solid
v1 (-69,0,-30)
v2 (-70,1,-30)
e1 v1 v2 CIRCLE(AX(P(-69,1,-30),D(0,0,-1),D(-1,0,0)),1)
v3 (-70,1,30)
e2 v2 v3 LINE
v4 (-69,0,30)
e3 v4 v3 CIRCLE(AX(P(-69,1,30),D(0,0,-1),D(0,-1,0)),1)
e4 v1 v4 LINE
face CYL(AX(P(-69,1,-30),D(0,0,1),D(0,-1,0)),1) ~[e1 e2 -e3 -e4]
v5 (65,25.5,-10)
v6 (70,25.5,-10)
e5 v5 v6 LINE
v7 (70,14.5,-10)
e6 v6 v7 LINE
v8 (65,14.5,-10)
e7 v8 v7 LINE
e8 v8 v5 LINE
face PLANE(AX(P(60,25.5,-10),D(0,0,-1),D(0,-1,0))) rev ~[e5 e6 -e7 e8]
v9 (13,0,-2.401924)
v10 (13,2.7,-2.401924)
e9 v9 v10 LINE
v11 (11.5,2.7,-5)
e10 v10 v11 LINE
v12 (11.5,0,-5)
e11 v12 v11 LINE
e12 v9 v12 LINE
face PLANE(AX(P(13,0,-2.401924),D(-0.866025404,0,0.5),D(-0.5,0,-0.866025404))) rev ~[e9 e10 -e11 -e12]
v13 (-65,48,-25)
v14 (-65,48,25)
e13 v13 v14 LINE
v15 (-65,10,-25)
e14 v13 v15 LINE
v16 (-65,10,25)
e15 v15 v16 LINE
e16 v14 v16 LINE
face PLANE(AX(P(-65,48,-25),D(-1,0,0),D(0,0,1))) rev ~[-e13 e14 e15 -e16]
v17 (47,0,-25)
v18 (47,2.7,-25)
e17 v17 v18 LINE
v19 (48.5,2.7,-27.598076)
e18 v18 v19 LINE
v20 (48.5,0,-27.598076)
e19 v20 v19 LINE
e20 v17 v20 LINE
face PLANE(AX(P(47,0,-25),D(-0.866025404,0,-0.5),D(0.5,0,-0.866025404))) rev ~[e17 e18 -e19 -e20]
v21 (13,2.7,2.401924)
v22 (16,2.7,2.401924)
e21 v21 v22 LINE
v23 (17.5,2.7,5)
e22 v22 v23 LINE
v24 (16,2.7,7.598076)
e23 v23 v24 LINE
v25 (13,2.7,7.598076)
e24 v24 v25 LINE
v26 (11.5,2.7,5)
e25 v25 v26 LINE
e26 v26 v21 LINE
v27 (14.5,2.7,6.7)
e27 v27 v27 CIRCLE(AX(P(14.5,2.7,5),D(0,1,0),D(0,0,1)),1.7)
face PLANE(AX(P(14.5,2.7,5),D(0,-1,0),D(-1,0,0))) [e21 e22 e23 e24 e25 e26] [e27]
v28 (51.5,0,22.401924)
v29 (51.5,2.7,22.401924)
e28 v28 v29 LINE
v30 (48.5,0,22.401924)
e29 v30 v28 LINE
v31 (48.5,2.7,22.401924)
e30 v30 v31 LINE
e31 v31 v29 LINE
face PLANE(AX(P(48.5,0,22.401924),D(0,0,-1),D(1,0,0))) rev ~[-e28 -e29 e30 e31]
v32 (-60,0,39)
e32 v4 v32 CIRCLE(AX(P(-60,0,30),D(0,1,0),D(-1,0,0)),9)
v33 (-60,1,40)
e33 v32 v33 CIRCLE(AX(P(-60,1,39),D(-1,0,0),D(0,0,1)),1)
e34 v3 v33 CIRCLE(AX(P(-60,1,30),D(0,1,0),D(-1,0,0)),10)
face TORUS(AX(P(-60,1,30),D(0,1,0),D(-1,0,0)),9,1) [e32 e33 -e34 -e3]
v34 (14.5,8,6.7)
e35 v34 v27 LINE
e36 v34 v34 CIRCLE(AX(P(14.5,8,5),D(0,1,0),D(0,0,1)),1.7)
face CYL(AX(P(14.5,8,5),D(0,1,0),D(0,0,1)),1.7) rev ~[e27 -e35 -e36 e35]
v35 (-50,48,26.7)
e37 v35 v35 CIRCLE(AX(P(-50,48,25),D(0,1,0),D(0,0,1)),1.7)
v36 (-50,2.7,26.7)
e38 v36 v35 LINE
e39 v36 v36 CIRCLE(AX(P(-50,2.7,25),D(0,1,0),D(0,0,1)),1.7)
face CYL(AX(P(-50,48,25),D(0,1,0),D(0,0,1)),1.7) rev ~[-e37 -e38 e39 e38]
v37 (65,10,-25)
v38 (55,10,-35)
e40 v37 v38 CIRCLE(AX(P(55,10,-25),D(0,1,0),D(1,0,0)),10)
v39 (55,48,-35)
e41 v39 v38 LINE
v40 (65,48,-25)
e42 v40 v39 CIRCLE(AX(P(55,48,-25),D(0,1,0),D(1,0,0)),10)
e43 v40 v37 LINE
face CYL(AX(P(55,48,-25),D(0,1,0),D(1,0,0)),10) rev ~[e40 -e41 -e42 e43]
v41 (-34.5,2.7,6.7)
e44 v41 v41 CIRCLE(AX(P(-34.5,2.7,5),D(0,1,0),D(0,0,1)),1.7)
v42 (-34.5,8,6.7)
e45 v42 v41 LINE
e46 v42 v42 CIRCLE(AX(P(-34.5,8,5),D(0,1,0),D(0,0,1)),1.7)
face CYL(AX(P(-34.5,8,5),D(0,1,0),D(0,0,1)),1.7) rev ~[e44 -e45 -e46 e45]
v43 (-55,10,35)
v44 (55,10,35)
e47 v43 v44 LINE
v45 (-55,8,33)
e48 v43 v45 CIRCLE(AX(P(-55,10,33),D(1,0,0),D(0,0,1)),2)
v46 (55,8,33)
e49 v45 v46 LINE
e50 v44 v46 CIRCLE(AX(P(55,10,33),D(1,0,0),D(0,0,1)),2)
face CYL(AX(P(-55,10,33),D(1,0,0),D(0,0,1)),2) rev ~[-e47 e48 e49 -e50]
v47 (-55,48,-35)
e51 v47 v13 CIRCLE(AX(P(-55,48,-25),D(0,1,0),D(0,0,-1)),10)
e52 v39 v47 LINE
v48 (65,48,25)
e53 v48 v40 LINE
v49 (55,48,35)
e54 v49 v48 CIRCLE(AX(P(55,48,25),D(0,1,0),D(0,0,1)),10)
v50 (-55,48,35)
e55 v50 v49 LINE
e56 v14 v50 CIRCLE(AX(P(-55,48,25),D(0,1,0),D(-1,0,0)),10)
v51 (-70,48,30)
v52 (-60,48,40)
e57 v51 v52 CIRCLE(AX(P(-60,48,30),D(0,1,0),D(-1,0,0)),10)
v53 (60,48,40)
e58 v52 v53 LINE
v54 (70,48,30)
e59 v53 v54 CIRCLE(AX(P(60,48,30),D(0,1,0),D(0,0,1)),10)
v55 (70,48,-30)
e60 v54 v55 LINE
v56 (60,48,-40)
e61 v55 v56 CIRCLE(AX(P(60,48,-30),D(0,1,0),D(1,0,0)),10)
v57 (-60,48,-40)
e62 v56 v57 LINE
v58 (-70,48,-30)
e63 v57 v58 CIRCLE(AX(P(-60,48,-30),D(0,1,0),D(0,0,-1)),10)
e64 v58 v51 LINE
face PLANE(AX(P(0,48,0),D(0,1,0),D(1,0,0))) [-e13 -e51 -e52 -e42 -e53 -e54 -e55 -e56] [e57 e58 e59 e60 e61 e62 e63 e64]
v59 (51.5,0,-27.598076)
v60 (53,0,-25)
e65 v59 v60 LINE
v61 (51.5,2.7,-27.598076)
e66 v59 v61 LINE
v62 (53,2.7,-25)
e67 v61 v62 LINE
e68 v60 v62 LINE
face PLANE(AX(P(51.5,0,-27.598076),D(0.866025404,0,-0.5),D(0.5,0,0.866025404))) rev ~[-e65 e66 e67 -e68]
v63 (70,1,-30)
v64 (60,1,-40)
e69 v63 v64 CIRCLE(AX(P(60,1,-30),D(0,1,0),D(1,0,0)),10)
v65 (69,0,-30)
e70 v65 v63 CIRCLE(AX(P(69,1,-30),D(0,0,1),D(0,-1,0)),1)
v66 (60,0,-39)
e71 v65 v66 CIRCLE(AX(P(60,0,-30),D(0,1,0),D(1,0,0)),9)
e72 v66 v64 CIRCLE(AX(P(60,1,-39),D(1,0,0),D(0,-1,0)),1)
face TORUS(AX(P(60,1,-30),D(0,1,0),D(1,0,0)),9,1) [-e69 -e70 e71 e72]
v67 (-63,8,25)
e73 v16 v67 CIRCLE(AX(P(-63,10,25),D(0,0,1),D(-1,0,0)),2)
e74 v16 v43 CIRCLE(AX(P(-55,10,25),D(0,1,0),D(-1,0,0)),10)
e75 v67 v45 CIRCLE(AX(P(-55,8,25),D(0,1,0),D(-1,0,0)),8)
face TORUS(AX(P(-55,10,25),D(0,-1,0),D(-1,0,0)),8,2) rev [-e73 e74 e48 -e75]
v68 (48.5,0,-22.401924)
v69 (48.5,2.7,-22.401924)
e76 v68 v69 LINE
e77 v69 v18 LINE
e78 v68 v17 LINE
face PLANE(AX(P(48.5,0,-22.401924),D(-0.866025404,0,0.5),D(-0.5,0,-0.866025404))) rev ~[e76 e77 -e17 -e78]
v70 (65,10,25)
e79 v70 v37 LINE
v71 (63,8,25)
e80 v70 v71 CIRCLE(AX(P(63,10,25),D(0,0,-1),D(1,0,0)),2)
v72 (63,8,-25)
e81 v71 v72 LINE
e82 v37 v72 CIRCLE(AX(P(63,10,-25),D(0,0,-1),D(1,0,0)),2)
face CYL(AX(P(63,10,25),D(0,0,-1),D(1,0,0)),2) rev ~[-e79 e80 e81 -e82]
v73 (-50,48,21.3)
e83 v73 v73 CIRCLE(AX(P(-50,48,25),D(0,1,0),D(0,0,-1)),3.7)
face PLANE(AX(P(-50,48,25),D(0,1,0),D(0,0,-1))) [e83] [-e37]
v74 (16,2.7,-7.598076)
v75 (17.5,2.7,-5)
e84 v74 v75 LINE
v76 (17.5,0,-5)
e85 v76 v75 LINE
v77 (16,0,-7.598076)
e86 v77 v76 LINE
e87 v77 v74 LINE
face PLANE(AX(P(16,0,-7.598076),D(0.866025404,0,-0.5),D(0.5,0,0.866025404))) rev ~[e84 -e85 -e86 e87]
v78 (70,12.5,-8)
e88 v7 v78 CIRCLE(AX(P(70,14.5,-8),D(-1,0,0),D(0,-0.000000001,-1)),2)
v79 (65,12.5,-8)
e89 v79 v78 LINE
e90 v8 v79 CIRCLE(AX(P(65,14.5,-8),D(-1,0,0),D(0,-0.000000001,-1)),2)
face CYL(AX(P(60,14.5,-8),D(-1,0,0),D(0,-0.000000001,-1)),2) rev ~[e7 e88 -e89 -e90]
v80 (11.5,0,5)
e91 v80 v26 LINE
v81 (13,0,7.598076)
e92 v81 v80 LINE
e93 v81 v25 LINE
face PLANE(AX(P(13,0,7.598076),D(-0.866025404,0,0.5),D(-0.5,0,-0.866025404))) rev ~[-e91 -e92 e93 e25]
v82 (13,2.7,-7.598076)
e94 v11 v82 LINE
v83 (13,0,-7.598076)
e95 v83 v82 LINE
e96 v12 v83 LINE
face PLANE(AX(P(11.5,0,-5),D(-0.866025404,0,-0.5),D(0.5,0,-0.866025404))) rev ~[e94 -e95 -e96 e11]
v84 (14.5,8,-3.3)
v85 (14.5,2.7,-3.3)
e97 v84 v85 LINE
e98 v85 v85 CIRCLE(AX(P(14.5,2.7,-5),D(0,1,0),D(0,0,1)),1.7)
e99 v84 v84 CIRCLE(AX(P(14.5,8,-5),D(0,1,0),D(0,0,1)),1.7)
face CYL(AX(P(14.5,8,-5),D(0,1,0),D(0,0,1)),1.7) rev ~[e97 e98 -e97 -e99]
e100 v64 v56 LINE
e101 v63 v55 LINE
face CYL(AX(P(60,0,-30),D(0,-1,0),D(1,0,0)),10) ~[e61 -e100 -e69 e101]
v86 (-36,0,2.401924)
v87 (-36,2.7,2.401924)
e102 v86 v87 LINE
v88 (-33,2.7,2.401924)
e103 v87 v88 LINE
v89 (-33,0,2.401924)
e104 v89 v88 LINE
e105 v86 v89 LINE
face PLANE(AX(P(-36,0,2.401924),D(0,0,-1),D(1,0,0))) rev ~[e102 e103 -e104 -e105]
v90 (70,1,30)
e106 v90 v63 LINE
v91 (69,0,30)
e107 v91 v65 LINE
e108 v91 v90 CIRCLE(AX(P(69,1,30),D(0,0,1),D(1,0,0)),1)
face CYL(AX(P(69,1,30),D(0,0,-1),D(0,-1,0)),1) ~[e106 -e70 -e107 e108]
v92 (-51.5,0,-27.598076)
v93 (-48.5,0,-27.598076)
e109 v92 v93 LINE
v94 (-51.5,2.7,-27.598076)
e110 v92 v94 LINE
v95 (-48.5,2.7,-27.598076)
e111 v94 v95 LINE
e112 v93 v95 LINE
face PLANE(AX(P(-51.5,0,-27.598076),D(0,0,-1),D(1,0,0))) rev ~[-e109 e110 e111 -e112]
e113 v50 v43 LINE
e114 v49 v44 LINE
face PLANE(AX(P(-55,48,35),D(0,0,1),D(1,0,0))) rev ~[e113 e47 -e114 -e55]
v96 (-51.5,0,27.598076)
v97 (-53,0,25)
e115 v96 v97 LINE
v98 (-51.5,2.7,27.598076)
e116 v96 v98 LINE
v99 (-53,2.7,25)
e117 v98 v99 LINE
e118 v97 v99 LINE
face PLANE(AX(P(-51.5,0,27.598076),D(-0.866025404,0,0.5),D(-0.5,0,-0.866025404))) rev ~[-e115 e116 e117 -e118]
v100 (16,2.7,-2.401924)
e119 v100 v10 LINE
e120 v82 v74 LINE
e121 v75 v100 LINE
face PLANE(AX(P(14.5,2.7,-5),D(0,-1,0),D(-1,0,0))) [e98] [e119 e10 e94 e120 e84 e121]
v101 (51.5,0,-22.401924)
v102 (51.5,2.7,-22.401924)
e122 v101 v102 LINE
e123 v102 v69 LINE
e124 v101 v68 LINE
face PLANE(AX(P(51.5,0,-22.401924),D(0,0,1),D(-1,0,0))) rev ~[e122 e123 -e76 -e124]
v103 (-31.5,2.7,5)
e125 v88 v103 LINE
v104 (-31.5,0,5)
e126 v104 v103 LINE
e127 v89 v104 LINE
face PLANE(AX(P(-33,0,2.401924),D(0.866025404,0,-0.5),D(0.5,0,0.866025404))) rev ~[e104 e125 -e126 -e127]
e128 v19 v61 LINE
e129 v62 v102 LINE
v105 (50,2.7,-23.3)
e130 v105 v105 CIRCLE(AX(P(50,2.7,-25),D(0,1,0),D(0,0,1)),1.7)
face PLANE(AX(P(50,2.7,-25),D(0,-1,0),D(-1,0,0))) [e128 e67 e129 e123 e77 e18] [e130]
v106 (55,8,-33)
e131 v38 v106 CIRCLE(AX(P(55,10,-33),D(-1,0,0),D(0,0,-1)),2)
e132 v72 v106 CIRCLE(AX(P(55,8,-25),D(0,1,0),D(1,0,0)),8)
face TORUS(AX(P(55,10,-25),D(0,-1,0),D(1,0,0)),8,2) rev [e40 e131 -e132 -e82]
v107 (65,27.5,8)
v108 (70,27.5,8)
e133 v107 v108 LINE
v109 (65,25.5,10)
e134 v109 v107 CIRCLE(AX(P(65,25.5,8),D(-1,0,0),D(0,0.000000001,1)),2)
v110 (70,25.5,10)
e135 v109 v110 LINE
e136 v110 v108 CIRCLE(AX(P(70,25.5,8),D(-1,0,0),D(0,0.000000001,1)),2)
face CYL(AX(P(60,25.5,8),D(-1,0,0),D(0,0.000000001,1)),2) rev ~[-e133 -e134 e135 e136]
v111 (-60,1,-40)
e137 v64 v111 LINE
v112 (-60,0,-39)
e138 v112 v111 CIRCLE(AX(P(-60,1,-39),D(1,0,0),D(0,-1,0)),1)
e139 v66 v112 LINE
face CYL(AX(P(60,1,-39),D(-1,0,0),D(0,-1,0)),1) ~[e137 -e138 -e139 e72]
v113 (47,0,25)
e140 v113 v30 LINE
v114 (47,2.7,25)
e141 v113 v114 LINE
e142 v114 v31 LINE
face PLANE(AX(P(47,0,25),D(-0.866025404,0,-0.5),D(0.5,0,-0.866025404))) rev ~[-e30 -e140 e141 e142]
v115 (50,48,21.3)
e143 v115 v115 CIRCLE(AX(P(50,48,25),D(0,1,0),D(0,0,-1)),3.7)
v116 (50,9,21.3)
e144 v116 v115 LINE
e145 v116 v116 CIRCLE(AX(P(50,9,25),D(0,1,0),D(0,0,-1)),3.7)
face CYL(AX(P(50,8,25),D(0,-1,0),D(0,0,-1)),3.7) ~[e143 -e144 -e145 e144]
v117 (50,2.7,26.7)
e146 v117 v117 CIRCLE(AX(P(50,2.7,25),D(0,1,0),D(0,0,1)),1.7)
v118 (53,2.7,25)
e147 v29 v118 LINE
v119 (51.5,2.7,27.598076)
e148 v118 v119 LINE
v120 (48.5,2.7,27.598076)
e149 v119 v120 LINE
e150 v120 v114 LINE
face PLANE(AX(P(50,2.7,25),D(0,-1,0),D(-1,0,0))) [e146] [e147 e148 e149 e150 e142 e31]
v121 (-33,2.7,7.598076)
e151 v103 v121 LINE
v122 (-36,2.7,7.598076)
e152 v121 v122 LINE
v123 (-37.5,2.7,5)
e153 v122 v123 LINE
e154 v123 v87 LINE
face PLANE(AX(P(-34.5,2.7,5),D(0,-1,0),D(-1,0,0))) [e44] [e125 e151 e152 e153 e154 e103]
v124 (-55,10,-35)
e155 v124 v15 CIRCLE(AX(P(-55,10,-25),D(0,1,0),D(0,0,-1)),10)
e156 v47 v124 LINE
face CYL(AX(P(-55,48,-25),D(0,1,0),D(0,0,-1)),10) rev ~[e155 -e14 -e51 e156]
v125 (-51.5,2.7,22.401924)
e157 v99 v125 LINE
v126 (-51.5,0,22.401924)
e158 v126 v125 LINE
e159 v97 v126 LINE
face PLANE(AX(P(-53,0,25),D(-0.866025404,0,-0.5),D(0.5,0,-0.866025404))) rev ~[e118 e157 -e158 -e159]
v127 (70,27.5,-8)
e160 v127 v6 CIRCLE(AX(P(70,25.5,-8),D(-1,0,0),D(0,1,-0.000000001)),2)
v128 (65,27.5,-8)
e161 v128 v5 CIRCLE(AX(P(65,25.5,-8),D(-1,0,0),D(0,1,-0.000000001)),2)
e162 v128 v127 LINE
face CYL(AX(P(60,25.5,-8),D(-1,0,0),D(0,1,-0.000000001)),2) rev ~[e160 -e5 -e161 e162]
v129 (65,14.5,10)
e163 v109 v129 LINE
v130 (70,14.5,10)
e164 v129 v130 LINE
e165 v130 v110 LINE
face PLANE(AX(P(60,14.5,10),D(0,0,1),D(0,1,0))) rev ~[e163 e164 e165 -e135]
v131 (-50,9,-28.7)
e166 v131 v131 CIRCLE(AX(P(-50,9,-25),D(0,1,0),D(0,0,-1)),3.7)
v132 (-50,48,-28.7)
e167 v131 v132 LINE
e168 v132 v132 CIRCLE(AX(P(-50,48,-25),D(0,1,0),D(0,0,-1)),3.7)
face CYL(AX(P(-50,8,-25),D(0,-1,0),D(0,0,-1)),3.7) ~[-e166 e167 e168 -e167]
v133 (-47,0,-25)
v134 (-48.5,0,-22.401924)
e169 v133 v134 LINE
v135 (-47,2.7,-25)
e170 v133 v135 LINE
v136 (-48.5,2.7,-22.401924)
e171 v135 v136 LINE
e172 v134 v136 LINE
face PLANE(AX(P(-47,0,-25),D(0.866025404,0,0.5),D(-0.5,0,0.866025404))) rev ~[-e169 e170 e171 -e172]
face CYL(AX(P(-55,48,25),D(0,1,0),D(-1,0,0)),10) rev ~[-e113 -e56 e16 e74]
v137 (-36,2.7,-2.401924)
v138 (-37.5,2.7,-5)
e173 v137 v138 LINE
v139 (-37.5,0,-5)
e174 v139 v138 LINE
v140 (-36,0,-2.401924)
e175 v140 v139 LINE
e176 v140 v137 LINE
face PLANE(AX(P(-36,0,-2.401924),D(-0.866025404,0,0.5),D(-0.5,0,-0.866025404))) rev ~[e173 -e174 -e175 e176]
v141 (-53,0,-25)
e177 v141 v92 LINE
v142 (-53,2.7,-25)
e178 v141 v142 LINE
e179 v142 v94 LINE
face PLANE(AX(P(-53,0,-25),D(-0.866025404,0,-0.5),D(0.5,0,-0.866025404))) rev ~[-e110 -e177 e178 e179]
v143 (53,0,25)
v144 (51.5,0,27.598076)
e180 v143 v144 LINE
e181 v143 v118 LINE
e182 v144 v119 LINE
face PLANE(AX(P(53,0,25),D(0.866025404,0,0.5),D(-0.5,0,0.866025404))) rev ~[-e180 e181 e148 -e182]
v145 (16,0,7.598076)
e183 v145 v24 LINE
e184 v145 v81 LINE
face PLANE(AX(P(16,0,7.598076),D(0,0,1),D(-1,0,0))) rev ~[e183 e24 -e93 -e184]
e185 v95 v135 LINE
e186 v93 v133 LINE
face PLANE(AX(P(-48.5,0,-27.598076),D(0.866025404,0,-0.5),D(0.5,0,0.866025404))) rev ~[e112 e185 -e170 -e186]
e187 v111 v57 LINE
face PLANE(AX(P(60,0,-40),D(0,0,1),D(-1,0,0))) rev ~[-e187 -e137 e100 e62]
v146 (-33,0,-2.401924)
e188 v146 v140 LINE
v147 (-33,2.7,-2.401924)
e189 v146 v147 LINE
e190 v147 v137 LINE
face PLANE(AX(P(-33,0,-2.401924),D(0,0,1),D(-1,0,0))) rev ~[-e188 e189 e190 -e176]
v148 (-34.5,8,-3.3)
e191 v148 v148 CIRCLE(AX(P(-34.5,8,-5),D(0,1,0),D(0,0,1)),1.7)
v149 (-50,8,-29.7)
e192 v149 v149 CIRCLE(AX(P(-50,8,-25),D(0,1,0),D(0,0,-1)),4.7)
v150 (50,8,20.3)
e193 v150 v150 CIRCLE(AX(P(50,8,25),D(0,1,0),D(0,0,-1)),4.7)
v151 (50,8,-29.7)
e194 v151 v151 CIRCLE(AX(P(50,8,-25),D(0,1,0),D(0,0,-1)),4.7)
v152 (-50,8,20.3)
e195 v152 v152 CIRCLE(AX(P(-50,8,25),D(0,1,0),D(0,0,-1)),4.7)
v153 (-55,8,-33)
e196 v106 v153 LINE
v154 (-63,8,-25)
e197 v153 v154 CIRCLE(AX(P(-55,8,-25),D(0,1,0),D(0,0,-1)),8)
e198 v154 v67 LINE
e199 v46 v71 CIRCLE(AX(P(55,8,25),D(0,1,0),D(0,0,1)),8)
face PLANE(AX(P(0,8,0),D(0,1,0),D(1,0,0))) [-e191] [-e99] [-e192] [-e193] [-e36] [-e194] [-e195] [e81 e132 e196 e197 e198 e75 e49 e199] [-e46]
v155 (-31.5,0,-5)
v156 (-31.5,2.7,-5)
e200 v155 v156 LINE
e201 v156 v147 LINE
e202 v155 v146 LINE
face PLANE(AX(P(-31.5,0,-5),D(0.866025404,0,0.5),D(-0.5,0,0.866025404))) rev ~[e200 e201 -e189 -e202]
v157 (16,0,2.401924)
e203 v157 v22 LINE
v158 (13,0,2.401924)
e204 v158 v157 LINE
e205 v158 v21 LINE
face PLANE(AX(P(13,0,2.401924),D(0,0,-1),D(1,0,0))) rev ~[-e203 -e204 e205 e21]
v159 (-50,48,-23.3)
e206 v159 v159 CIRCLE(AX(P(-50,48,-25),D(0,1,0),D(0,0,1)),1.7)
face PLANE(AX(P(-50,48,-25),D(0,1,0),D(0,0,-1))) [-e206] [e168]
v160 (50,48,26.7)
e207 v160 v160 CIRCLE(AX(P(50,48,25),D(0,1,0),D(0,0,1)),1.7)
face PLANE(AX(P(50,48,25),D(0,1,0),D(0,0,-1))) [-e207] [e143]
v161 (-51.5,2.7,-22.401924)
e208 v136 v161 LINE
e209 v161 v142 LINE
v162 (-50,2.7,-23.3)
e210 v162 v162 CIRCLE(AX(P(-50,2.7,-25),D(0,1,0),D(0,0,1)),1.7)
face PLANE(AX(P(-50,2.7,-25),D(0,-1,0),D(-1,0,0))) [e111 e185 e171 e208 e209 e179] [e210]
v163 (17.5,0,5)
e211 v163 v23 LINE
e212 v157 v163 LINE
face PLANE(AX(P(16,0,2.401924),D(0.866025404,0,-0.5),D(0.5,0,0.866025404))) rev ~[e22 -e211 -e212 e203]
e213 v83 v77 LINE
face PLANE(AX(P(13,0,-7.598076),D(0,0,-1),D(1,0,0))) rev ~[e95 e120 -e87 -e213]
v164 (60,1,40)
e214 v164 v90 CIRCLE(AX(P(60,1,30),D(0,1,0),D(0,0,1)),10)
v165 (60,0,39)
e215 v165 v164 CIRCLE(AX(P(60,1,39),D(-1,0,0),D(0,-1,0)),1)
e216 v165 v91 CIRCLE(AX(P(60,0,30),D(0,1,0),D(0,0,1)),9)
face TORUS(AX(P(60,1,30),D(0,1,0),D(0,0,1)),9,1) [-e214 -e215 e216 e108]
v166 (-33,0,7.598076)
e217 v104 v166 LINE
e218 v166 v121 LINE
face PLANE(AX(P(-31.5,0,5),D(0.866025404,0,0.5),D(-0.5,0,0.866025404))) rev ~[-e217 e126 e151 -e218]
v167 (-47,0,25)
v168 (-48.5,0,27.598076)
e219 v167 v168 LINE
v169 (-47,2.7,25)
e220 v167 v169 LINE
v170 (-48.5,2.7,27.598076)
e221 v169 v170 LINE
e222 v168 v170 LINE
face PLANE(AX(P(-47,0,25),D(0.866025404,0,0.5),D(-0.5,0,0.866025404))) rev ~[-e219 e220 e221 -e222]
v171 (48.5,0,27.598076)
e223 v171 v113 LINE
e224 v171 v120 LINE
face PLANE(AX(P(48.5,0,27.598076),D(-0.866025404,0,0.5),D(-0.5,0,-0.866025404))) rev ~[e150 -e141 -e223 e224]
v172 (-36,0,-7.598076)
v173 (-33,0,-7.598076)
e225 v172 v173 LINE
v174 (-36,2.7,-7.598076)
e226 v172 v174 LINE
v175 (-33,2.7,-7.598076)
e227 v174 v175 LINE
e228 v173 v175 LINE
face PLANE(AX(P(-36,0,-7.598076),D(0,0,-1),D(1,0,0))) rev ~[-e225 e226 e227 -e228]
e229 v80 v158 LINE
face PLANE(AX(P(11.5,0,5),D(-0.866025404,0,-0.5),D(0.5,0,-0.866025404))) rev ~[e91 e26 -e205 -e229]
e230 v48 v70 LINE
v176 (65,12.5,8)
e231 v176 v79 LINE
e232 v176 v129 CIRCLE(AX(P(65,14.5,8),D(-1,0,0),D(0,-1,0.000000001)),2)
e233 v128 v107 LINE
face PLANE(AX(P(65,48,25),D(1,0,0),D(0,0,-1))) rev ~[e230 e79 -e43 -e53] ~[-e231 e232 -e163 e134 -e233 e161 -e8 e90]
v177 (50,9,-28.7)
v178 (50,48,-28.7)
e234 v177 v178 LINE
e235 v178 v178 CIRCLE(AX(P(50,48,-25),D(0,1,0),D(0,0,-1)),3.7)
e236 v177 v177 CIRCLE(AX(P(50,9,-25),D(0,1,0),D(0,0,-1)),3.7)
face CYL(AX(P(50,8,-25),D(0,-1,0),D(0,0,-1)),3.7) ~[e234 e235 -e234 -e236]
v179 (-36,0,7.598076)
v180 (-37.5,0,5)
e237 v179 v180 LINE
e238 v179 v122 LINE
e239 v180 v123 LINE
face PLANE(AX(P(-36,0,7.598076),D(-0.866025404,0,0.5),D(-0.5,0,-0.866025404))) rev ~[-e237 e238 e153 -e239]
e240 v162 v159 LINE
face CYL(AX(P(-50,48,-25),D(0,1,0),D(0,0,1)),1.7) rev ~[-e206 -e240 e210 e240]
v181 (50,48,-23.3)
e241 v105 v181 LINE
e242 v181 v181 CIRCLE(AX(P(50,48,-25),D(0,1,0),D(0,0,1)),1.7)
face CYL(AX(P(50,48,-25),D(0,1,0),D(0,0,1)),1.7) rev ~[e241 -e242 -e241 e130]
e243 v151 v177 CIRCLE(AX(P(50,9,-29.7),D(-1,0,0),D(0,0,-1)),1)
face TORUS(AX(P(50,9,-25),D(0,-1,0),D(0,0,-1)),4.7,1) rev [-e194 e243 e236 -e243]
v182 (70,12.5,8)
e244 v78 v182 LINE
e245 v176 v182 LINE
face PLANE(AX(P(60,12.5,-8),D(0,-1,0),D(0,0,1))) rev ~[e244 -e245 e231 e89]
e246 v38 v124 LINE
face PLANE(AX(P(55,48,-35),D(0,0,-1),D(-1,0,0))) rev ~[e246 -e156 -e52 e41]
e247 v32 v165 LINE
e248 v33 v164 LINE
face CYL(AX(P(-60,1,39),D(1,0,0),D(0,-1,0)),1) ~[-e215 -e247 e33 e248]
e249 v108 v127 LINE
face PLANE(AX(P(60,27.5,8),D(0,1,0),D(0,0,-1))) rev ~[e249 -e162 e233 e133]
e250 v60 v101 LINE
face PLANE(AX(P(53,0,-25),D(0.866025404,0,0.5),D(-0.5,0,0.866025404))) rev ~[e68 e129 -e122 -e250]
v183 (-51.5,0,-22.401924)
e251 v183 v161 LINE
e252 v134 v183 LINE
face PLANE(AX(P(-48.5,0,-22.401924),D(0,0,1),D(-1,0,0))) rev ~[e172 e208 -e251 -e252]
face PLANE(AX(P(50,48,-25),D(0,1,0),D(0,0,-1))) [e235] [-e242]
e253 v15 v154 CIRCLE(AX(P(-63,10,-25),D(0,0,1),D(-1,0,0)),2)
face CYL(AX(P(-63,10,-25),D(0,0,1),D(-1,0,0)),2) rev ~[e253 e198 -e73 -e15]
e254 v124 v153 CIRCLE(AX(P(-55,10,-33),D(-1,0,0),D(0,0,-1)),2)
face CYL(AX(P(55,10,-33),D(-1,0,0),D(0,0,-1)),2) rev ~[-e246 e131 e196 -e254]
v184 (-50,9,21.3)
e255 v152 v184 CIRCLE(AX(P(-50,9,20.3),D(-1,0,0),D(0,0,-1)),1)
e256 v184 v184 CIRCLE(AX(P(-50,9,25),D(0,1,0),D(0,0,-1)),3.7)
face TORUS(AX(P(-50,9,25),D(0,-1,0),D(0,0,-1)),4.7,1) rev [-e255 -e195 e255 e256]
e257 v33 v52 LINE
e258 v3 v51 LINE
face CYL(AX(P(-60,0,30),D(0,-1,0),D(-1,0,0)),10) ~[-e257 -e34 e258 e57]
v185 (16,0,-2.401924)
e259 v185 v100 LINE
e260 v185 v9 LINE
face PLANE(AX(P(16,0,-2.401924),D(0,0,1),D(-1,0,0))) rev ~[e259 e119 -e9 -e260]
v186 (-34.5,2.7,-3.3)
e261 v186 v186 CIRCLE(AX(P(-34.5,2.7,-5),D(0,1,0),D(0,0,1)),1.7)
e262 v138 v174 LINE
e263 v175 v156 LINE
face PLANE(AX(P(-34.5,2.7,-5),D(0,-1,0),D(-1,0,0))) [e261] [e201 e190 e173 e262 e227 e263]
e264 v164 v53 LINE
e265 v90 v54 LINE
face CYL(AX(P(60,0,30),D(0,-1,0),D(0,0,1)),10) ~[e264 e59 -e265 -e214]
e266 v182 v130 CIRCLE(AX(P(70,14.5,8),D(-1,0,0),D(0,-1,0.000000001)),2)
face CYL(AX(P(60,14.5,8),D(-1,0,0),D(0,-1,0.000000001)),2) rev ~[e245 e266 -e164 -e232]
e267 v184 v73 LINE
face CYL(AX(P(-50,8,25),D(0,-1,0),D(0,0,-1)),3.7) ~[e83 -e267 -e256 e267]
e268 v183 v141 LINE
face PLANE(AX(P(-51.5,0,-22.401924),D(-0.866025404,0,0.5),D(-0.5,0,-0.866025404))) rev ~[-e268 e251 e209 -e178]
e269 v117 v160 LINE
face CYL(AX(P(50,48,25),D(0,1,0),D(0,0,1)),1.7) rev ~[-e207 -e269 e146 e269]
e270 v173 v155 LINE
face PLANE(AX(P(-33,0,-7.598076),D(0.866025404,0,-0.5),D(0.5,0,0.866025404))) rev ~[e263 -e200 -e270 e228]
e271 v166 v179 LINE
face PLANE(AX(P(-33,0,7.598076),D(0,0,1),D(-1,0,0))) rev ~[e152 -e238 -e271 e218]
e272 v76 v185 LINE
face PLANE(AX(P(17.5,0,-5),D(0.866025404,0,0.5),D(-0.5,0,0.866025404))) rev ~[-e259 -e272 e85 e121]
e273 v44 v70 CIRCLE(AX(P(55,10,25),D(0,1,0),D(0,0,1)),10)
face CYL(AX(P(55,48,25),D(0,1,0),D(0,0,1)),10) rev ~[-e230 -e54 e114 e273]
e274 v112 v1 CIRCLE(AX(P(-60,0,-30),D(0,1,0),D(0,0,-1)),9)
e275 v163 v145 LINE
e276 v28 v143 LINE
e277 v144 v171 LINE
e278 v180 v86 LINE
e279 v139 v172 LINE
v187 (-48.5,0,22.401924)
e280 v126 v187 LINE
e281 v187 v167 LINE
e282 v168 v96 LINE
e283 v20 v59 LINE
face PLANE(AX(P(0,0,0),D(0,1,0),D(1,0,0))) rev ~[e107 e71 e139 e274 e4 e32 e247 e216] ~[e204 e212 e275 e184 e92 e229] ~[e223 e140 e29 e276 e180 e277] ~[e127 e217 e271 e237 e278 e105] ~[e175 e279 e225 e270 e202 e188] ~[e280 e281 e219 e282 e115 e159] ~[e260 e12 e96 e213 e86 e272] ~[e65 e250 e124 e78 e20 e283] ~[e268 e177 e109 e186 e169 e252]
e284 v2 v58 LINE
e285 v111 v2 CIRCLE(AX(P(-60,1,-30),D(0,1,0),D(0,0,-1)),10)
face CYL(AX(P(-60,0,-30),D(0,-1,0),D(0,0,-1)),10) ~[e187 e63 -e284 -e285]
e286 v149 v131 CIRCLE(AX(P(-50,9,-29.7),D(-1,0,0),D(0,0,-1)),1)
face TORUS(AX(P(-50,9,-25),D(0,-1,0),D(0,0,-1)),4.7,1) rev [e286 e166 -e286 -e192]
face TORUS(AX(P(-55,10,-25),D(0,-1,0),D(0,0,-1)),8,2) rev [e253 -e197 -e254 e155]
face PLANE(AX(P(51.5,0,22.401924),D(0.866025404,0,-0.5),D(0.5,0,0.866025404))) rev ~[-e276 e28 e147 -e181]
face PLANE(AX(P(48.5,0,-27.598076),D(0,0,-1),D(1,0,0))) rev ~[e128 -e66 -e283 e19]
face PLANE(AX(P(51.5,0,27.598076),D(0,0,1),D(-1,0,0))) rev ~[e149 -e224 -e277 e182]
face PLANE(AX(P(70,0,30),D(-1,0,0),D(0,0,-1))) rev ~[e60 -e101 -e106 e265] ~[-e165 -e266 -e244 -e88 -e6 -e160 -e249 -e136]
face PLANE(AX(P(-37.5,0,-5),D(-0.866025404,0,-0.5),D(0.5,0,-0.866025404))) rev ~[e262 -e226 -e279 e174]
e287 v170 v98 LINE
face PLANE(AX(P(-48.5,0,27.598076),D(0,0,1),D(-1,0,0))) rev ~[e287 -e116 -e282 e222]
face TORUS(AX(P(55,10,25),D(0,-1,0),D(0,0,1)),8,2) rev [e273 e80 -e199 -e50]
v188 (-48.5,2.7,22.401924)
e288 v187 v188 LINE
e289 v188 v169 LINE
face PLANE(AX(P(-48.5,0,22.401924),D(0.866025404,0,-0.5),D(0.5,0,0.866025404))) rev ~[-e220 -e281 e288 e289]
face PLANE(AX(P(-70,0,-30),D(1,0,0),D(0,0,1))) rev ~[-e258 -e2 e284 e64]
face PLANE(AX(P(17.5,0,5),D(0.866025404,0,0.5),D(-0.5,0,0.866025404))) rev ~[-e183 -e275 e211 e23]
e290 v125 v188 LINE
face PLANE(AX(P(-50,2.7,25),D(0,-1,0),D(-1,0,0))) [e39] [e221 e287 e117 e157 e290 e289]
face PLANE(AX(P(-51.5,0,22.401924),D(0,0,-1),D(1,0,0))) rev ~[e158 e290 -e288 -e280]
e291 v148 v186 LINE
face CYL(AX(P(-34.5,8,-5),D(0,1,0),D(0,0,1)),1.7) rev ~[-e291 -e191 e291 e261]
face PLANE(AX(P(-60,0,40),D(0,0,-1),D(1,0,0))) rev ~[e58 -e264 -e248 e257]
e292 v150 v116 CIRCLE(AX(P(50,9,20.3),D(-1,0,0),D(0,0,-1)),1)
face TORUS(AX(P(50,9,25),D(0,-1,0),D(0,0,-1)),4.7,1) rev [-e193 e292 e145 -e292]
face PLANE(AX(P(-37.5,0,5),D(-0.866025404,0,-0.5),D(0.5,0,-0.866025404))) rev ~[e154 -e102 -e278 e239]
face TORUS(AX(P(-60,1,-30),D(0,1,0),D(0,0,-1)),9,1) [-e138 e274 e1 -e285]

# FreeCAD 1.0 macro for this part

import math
import FreeCAD as App
import Part
import Sketcher
Q = App.Units.Quantity


def edges_at(feature, points):
    """Names of the edges that pass closest to the given points."""
    edges = feature.Shape.Edges
    near = lambda p: min(range(len(edges)), key=lambda i: edges[i].distToShape(Part.Vertex(*p))[0])
    return sorted({f"Edge{near(p) + 1}" for p in points})

doc = App.newDocument("Part")
params = doc.addObject("Spreadsheet::Sheet", "Params")
for row, (alias, value) in enumerate([
    ("sketch1_radius", "10 mm"),
    ("sketch1_width", "120 mm"),
    ("sketch1_height", "60 mm"),
    ("pad1_length", "48 mm"),
    ("sketch2_radius", "10 mm"),
    ("sketch2_width", "110 mm"),
    ("sketch2_height", "50 mm"),
    ("pocket1_length", "40 mm"),
    ("sketch3_diameter", "3.4 mm"),
    ("sketch4_width", "3 mm"),
    ("sketch4_length", "3 mm"),
    ("pocket3_length", "2.7 mm"),
    ("sketch5_diameter", "7.4 mm"),
    ("pad2_length", "40 mm"),
    ("sketch6_diameter", "3.4 mm"),
    ("fillet_radius", "1 mm"),
    ("fillet2_radius", "2 mm"),
    ("fillet3_radius", "1 mm"),
    ("sketch7_diameter", "3.4 mm"),
    ("sketch8_width", "3 mm"),
    ("sketch8_length", "3 mm"),
    ("pocket6_length", "2.7 mm"),
    ("sketch9_radius", "2 mm"),
    ("sketch9_width", "11 mm"),
    ("sketch9_height", "16 mm"),
    ("pocket7_length", "20 mm"),
], start=1):
    params.set(f"A{row}", alias)
    params.set(f"B{row}", "=" + value)
    params.setAlias(f"B{row}", alias)

body = doc.addObject("PartDesign::Body", "Body")

sketch1 = body.newObject("Sketcher::SketchObject", "Sketch")
sketch1.AttachmentSupport = (doc.getObject("XZ_Plane"), [""])
sketch1.MapMode = "FlatFace"
sketch1.addGeometry([
    Part.LineSegment(App.Vector(-60, 40, 0), App.Vector(60, 40, 0)),
    Part.ArcOfCircle(Part.Circle(App.Vector(60, 30, 0), App.Vector(0, 0, 1), 10), math.radians(0), math.radians(90)),
    Part.LineSegment(App.Vector(70, 30, 0), App.Vector(70, -30, 0)),
    Part.ArcOfCircle(Part.Circle(App.Vector(60, -30, 0), App.Vector(0, 0, 1), 10), math.radians(-90), math.radians(0)),
    Part.LineSegment(App.Vector(60, -40, 0), App.Vector(-60, -40, 0)),
    Part.ArcOfCircle(Part.Circle(App.Vector(-60, -30, 0), App.Vector(0, 0, 1), 10), math.radians(180), math.radians(270)),
    Part.LineSegment(App.Vector(-70, -30, 0), App.Vector(-70, 30, 0)),
    Part.ArcOfCircle(Part.Circle(App.Vector(-60, 30, 0), App.Vector(0, 0, 1), 10), math.radians(90), math.radians(180)),
], False)
sketch1.addConstraint([
    Sketcher.Constraint("Tangent", 0, 2, 1, 2),
    Sketcher.Constraint("Tangent", 1, 1, 2, 1),
    Sketcher.Constraint("Tangent", 2, 2, 3, 2),
    Sketcher.Constraint("Tangent", 3, 1, 4, 1),
    Sketcher.Constraint("Tangent", 4, 2, 5, 2),
    Sketcher.Constraint("Tangent", 5, 1, 6, 1),
    Sketcher.Constraint("Tangent", 6, 2, 7, 2),
    Sketcher.Constraint("Tangent", 7, 1, 0, 1),
    Sketcher.Constraint("Horizontal", 0),
    Sketcher.Constraint("Vertical", 2),
    Sketcher.Constraint("Horizontal", 4),
    Sketcher.Constraint("Vertical", 6),
    Sketcher.Constraint("Equal", 1, 3),
    Sketcher.Constraint("Equal", 3, 5),
    Sketcher.Constraint("Equal", 5, 7),
    Sketcher.Constraint("Symmetric", 1, 3, 5, 3, -1, 1),
    Sketcher.Constraint("Radius", 1, 10.0),
    Sketcher.Constraint("DistanceX", 0, 1, 0, 2, 120.0),
    Sketcher.Constraint("DistanceY", 2, 2, 2, 1, 60.0),
])
sketch1.setExpression("Constraints[16]", "Params.sketch1_radius")
sketch1.setExpression("Constraints[17]", "Params.sketch1_width")
sketch1.setExpression("Constraints[18]", "Params.sketch1_height")
pad1 = body.newObject("PartDesign::Pad", "Pad")
pad1.Profile = sketch1
pad1.setExpression("Length", "Params.pad1_length")
pad1.Reversed = True

sketch2 = body.newObject("Sketcher::SketchObject", "Sketch001")
sketch2.AttachmentSupport = (doc.getObject("XZ_Plane"), [""])
sketch2.MapMode = "FlatFace"
sketch2.AttachmentOffset = App.Placement(App.Vector(0, 0, -48), App.Rotation())
sketch2.addGeometry([
    Part.LineSegment(App.Vector(-55, 35, 0), App.Vector(55, 35, 0)),
    Part.ArcOfCircle(Part.Circle(App.Vector(55, 25, 0), App.Vector(0, 0, 1), 10), math.radians(0), math.radians(90)),
    Part.LineSegment(App.Vector(65, 25, 0), App.Vector(65, -25, 0)),
    Part.ArcOfCircle(Part.Circle(App.Vector(55, -25, 0), App.Vector(0, 0, 1), 10), math.radians(-90), math.radians(0)),
    Part.LineSegment(App.Vector(55, -35, 0), App.Vector(-55, -35, 0)),
    Part.ArcOfCircle(Part.Circle(App.Vector(-55, -25, 0), App.Vector(0, 0, 1), 10), math.radians(180), math.radians(270)),
    Part.LineSegment(App.Vector(-65, -25, 0), App.Vector(-65, 25, 0)),
    Part.ArcOfCircle(Part.Circle(App.Vector(-55, 25, 0), App.Vector(0, 0, 1), 10), math.radians(90), math.radians(180)),
], False)
sketch2.addConstraint([
    Sketcher.Constraint("Tangent", 0, 2, 1, 2),
    Sketcher.Constraint("Tangent", 1, 1, 2, 1),
    Sketcher.Constraint("Tangent", 2, 2, 3, 2),
    Sketcher.Constraint("Tangent", 3, 1, 4, 1),
    Sketcher.Constraint("Tangent", 4, 2, 5, 2),
    Sketcher.Constraint("Tangent", 5, 1, 6, 1),
    Sketcher.Constraint("Tangent", 6, 2, 7, 2),
    Sketcher.Constraint("Tangent", 7, 1, 0, 1),
    Sketcher.Constraint("Horizontal", 0),
    Sketcher.Constraint("Vertical", 2),
    Sketcher.Constraint("Horizontal", 4),
    Sketcher.Constraint("Vertical", 6),
    Sketcher.Constraint("Equal", 1, 3),
    Sketcher.Constraint("Equal", 3, 5),
    Sketcher.Constraint("Equal", 5, 7),
    Sketcher.Constraint("Symmetric", 1, 3, 5, 3, -1, 1),
    Sketcher.Constraint("Radius", 1, 10.0),
    Sketcher.Constraint("DistanceX", 0, 1, 0, 2, 110.0),
    Sketcher.Constraint("DistanceY", 2, 2, 2, 1, 50.0),
])
sketch2.setExpression("Constraints[16]", "Params.sketch2_radius")
sketch2.setExpression("Constraints[17]", "Params.sketch2_width")
sketch2.setExpression("Constraints[18]", "Params.sketch2_height")
pocket1 = body.newObject("PartDesign::Pocket", "Pocket")
pocket1.Profile = sketch2
pocket1.setExpression("Length", "Params.pocket1_length")
pocket1.Reversed = True

sketch3 = body.newObject("Sketcher::SketchObject", "Sketch002")
sketch3.AttachmentSupport = (doc.getObject("XZ_Plane"), [""])
sketch3.MapMode = "FlatFace"
sketch3.AttachmentOffset = App.Placement(App.Vector(0, 0, -8), App.Rotation())
sketch3.addGeometry([
    Part.Circle(App.Vector(-50, -25, 0), App.Vector(0, 0, 1), 1.7),
    Part.Circle(App.Vector(50, -25, 0), App.Vector(0, 0, 1), 1.7),
    Part.Circle(App.Vector(50, 25, 0), App.Vector(0, 0, 1), 1.7),
    Part.Circle(App.Vector(-50, 25, 0), App.Vector(0, 0, 1), 1.7),
], False)
sketch3.addConstraint([
    Sketcher.Constraint("Equal", 0, 1),
    Sketcher.Constraint("Equal", 1, 2),
    Sketcher.Constraint("Equal", 2, 3),
    Sketcher.Constraint("Symmetric", 0, 3, 2, 3, -1, 1),
    Sketcher.Constraint("Symmetric", 1, 3, 3, 3, -1, 1),
    Sketcher.Constraint("Symmetric", 0, 3, 1, 3, -2),
    Sketcher.Constraint("Diameter", 0, 3.4),
    Sketcher.Constraint("DistanceX", 0, 3, -1, 1, 50.0),
    Sketcher.Constraint("DistanceY", 0, 3, -1, 1, 25.0),
])
sketch3.setExpression("Constraints[6]", "Params.sketch3_diameter")
pocket2 = body.newObject("PartDesign::Pocket", "Pocket001")
pocket2.Profile = sketch3
pocket2.Type = "ThroughAll"
pocket2.Reversed = True

sketch4 = body.newObject("Sketcher::SketchObject", "Sketch003")
sketch4.AttachmentSupport = (doc.getObject("XZ_Plane"), [""])
sketch4.MapMode = "FlatFace"
sketch4.addGeometry([
    Part.LineSegment(App.Vector(-53, 25, 0), App.Vector(-51.5, 22.4, 0)),
    Part.LineSegment(App.Vector(-51.5, 22.4, 0), App.Vector(-48.5, 22.4, 0)),
    Part.LineSegment(App.Vector(-48.5, 22.4, 0), App.Vector(-47, 25, 0)),
    Part.LineSegment(App.Vector(-47, 25, 0), App.Vector(-48.5, 27.6, 0)),
    Part.LineSegment(App.Vector(-48.5, 27.6, 0), App.Vector(-51.5, 27.6, 0)),
    Part.LineSegment(App.Vector(-51.5, 27.6, 0), App.Vector(-53, 25, 0)),
    Part.LineSegment(App.Vector(-47, -25, 0), App.Vector(-48.5, -22.4, 0)),
    Part.LineSegment(App.Vector(-48.5, -22.4, 0), App.Vector(-51.5, -22.4, 0)),
    Part.LineSegment(App.Vector(-51.5, -22.4, 0), App.Vector(-53, -25, 0)),
    Part.LineSegment(App.Vector(-53, -25, 0), App.Vector(-51.5, -27.6, 0)),
    Part.LineSegment(App.Vector(-51.5, -27.6, 0), App.Vector(-48.5, -27.6, 0)),
    Part.LineSegment(App.Vector(-48.5, -27.6, 0), App.Vector(-47, -25, 0)),
    Part.LineSegment(App.Vector(53, -25, 0), App.Vector(51.5, -22.4, 0)),
    Part.LineSegment(App.Vector(51.5, -22.4, 0), App.Vector(48.5, -22.4, 0)),
    Part.LineSegment(App.Vector(48.5, -22.4, 0), App.Vector(47, -25, 0)),
    Part.LineSegment(App.Vector(47, -25, 0), App.Vector(48.5, -27.6, 0)),
    Part.LineSegment(App.Vector(48.5, -27.6, 0), App.Vector(51.5, -27.6, 0)),
    Part.LineSegment(App.Vector(51.5, -27.6, 0), App.Vector(53, -25, 0)),
    Part.LineSegment(App.Vector(53, 25, 0), App.Vector(51.5, 27.6, 0)),
    Part.LineSegment(App.Vector(51.5, 27.6, 0), App.Vector(48.5, 27.6, 0)),
    Part.LineSegment(App.Vector(48.5, 27.6, 0), App.Vector(47, 25, 0)),
    Part.LineSegment(App.Vector(47, 25, 0), App.Vector(48.5, 22.4, 0)),
    Part.LineSegment(App.Vector(48.5, 22.4, 0), App.Vector(51.5, 22.4, 0)),
    Part.LineSegment(App.Vector(51.5, 22.4, 0), App.Vector(53, 25, 0)),
], False)
sketch4.addConstraint([
    Sketcher.Constraint("Coincident", 0, 2, 1, 1),
    Sketcher.Constraint("Coincident", 1, 2, 2, 1),
    Sketcher.Constraint("Coincident", 2, 2, 3, 1),
    Sketcher.Constraint("Coincident", 3, 2, 4, 1),
    Sketcher.Constraint("Coincident", 4, 2, 5, 1),
    Sketcher.Constraint("Coincident", 5, 2, 0, 1),
    Sketcher.Constraint("Coincident", 6, 2, 7, 1),
    Sketcher.Constraint("Coincident", 7, 2, 8, 1),
    Sketcher.Constraint("Coincident", 8, 2, 9, 1),
    Sketcher.Constraint("Coincident", 9, 2, 10, 1),
    Sketcher.Constraint("Coincident", 10, 2, 11, 1),
    Sketcher.Constraint("Coincident", 11, 2, 6, 1),
    Sketcher.Constraint("Coincident", 12, 2, 13, 1),
    Sketcher.Constraint("Coincident", 13, 2, 14, 1),
    Sketcher.Constraint("Coincident", 14, 2, 15, 1),
    Sketcher.Constraint("Coincident", 15, 2, 16, 1),
    Sketcher.Constraint("Coincident", 16, 2, 17, 1),
    Sketcher.Constraint("Coincident", 17, 2, 12, 1),
    Sketcher.Constraint("Coincident", 18, 2, 19, 1),
    Sketcher.Constraint("Coincident", 19, 2, 20, 1),
    Sketcher.Constraint("Coincident", 20, 2, 21, 1),
    Sketcher.Constraint("Coincident", 21, 2, 22, 1),
    Sketcher.Constraint("Coincident", 22, 2, 23, 1),
    Sketcher.Constraint("Coincident", 23, 2, 18, 1),
    Sketcher.Constraint("Horizontal", 1),
    Sketcher.Constraint("Horizontal", 4),
    Sketcher.Constraint("Horizontal", 7),
    Sketcher.Constraint("Horizontal", 10),
    Sketcher.Constraint("Horizontal", 13),
    Sketcher.Constraint("Horizontal", 16),
    Sketcher.Constraint("Horizontal", 19),
    Sketcher.Constraint("Horizontal", 22),
    Sketcher.Constraint("Symmetric", 0, 2, 12, 2, -1, 1),
    Sketcher.Constraint("Symmetric", 2, 2, 14, 2, -1, 1),
    Sketcher.Constraint("Symmetric", 3, 2, 15, 2, -1, 1),
    Sketcher.Constraint("Symmetric", 5, 2, 17, 2, -1, 1),
    Sketcher.Constraint("Symmetric", 9, 2, 18, 2, -1, 1),
    Sketcher.Constraint("Symmetric", 11, 2, 20, 2, -1, 1),
    Sketcher.Constraint("Symmetric", 6, 2, 21, 2, -1, 1),
    Sketcher.Constraint("Symmetric", 8, 2, 23, 2, -1, 1),
    Sketcher.Constraint("Symmetric", 7, 2, 12, 2, -2),
    Sketcher.Constraint("Symmetric", 11, 2, 14, 2, -2),
    Sketcher.Constraint("Symmetric", 10, 2, 15, 2, -2),
    Sketcher.Constraint("Symmetric", 8, 2, 17, 2, -2),
    Sketcher.Constraint("Parallel", 0, 3),
    Sketcher.Constraint("Parallel", 2, 5),
    Sketcher.Constraint("Parallel", 3, 6),
    Sketcher.Constraint("Parallel", 5, 8),
    Sketcher.Constraint("Parallel", 6, 9),
    Sketcher.Constraint("Parallel", 11, 14),
    Sketcher.Constraint("Parallel", 14, 17),
    Sketcher.Constraint("Parallel", 17, 20),
    Sketcher.Constraint("Parallel", 20, 23),
    Sketcher.Constraint("Horizontal", 2, 2, 5, 2),
    Sketcher.Constraint("Vertical", 1, 2, 3, 2),
    Sketcher.Constraint("DistanceX", 1, 1, 1, 2, 3.0),
    Sketcher.Constraint("Angle", 0, Q("-60 deg")),
    Sketcher.Constraint("Distance", 0, 3.0),
    Sketcher.Constraint("DistanceX", 2, 2, -1, 1, 47.0),
    Sketcher.Constraint("DistanceY", -1, 1, 2, 2, 25.0),
])
sketch4.setExpression("Constraints[55]", "Params.sketch4_width")
sketch4.setExpression("Constraints[57]", "Params.sketch4_length")
pocket3 = body.newObject("PartDesign::Pocket", "Pocket002")
pocket3.Profile = sketch4
pocket3.setExpression("Length", "Params.pocket3_length")

sketch5 = body.newObject("Sketcher::SketchObject", "Sketch004")
sketch5.AttachmentSupport = (doc.getObject("XZ_Plane"), [""])
sketch5.MapMode = "FlatFace"
sketch5.AttachmentOffset = App.Placement(App.Vector(0, 0, -8), App.Rotation())
sketch5.addGeometry([
    Part.Circle(App.Vector(-50, -25, 0), App.Vector(0, 0, 1), 3.7),
    Part.Circle(App.Vector(-50, 25, 0), App.Vector(0, 0, 1), 3.7),
    Part.Circle(App.Vector(50, -25, 0), App.Vector(0, 0, 1), 3.7),
    Part.Circle(App.Vector(50, 25, 0), App.Vector(0, 0, 1), 3.7),
], False)
sketch5.addConstraint([
    Sketcher.Constraint("Equal", 0, 1),
    Sketcher.Constraint("Equal", 1, 2),
    Sketcher.Constraint("Equal", 2, 3),
    Sketcher.Constraint("Symmetric", 1, 3, 2, 3, -1, 1),
    Sketcher.Constraint("Symmetric", 0, 3, 3, 3, -1, 1),
    Sketcher.Constraint("Symmetric", 0, 3, 2, 3, -2),
    Sketcher.Constraint("Diameter", 0, 7.4),
    Sketcher.Constraint("DistanceX", 0, 3, -1, 1, 50.0),
    Sketcher.Constraint("DistanceY", 0, 3, -1, 1, 25.0),
])
sketch5.setExpression("Constraints[6]", "Params.sketch5_diameter")
pad2 = body.newObject("PartDesign::Pad", "Pad001")
pad2.Profile = sketch5
pad2.setExpression("Length", "Params.pad2_length")
pad2.Reversed = True

sketch6 = body.newObject("Sketcher::SketchObject", "Sketch005")
sketch6.AttachmentSupport = (doc.getObject("XZ_Plane"), [""])
sketch6.MapMode = "FlatFace"
sketch6.AttachmentOffset = App.Placement(App.Vector(0, 0, -48), App.Rotation())
sketch6.addGeometry([
    Part.Circle(App.Vector(-50, -25, 0), App.Vector(0, 0, 1), 1.7),
    Part.Circle(App.Vector(50, -25, 0), App.Vector(0, 0, 1), 1.7),
    Part.Circle(App.Vector(-50, 25, 0), App.Vector(0, 0, 1), 1.7),
    Part.Circle(App.Vector(50, 25, 0), App.Vector(0, 0, 1), 1.7),
], False)
sketch6.addConstraint([
    Sketcher.Constraint("Equal", 0, 1),
    Sketcher.Constraint("Equal", 1, 2),
    Sketcher.Constraint("Equal", 2, 3),
    Sketcher.Constraint("Symmetric", 1, 3, 2, 3, -1, 1),
    Sketcher.Constraint("Symmetric", 0, 3, 3, 3, -1, 1),
    Sketcher.Constraint("Symmetric", 0, 3, 1, 3, -2),
    Sketcher.Constraint("Diameter", 0, 3.4),
    Sketcher.Constraint("DistanceX", 0, 3, -1, 1, 50.0),
    Sketcher.Constraint("DistanceY", 0, 3, -1, 1, 25.0),
])
sketch6.setExpression("Constraints[6]", "Params.sketch6_diameter")
pocket4 = body.newObject("PartDesign::Pocket", "Pocket003")
pocket4.Profile = sketch6
pocket4.Type = "ThroughAll"
pocket4.Reversed = True
doc.recompute()

fillet = body.newObject("PartDesign::Fillet", "Fillet")
fillet.Base = (pocket4, edges_at(pocket4, [
    (0, 0, -40),
    (67.071, 0, -37.071),
    (70, 0, 0),
    (67.071, 0, 37.071),
    (0, 0, 40),
    (-67.071, 0, 37.071),
    (-70, 0, 0),
    (-67.071, 0, -37.071),
]))
fillet.setExpression("Radius", "Params.fillet_radius")
doc.recompute()

fillet2 = body.newObject("PartDesign::Fillet", "Fillet001")
fillet2.Base = (fillet, edges_at(fillet, [
    (62.071, 8, -32.071),
    (65, 8, 0),
    (62.071, 8, 32.071),
    (0, 8, 35),
    (-62.071, 8, 32.071),
    (-65, 8, 0),
    (-62.071, 8, -32.071),
    (0, 8, -35),
]))
fillet2.setExpression("Radius", "Params.fillet2_radius")
doc.recompute()

fillet3 = body.newObject("PartDesign::Fillet", "Fillet002")
fillet3.Base = (fillet2, edges_at(fillet2, [
    (-50, 8, -21.3),
    (50, 8, 28.7),
    (50, 8, -21.3),
    (-50, 8, 28.7),
]))
fillet3.setExpression("Radius", "Params.fillet3_radius")

sketch7 = body.newObject("Sketcher::SketchObject", "Sketch006")
sketch7.AttachmentSupport = (doc.getObject("XZ_Plane"), [""])
sketch7.MapMode = "FlatFace"
sketch7.AttachmentOffset = App.Placement(App.Vector(0, 0, -8), App.Rotation())
sketch7.addGeometry([
    Part.Circle(App.Vector(-34.5, -5, 0), App.Vector(0, 0, 1), 1.7),
    Part.Circle(App.Vector(-34.5, 5, 0), App.Vector(0, 0, 1), 1.7),
    Part.Circle(App.Vector(14.5, -5, 0), App.Vector(0, 0, 1), 1.7),
    Part.Circle(App.Vector(14.5, 5, 0), App.Vector(0, 0, 1), 1.7),
], False)
sketch7.addConstraint([
    Sketcher.Constraint("Equal", 0, 1),
    Sketcher.Constraint("Equal", 1, 2),
    Sketcher.Constraint("Equal", 2, 3),
    Sketcher.Constraint("Symmetric", 0, 3, 1, 3, -1),
    Sketcher.Constraint("Symmetric", 2, 3, 3, 3, -1),
    Sketcher.Constraint("Horizontal", 0, 3, 2, 3),
    Sketcher.Constraint("Diameter", 0, 3.4),
    Sketcher.Constraint("DistanceY", 0, 3, -1, 1, 5.0),
    Sketcher.Constraint("DistanceX", 0, 3, 2, 3, 49.0),
    Sketcher.Constraint("DistanceX", 0, 3, -1, 1, 34.5),
])
sketch7.setExpression("Constraints[6]", "Params.sketch7_diameter")
pocket5 = body.newObject("PartDesign::Pocket", "Pocket004")
pocket5.Profile = sketch7
pocket5.Type = "ThroughAll"
pocket5.Reversed = True

sketch8 = body.newObject("Sketcher::SketchObject", "Sketch007")
sketch8.AttachmentSupport = (doc.getObject("XZ_Plane"), [""])
sketch8.MapMode = "FlatFace"
sketch8.addGeometry([
    Part.LineSegment(App.Vector(17.5, 5, 0), App.Vector(16, 7.6, 0)),
    Part.LineSegment(App.Vector(16, 7.6, 0), App.Vector(13, 7.6, 0)),
    Part.LineSegment(App.Vector(13, 7.6, 0), App.Vector(11.5, 5, 0)),
    Part.LineSegment(App.Vector(11.5, 5, 0), App.Vector(13, 2.4, 0)),
    Part.LineSegment(App.Vector(13, 2.4, 0), App.Vector(16, 2.4, 0)),
    Part.LineSegment(App.Vector(16, 2.4, 0), App.Vector(17.5, 5, 0)),
    Part.LineSegment(App.Vector(17.5, -5, 0), App.Vector(16, -2.4, 0)),
    Part.LineSegment(App.Vector(16, -2.4, 0), App.Vector(13, -2.4, 0)),
    Part.LineSegment(App.Vector(13, -2.4, 0), App.Vector(11.5, -5, 0)),
    Part.LineSegment(App.Vector(11.5, -5, 0), App.Vector(13, -7.6, 0)),
    Part.LineSegment(App.Vector(13, -7.6, 0), App.Vector(16, -7.6, 0)),
    Part.LineSegment(App.Vector(16, -7.6, 0), App.Vector(17.5, -5, 0)),
    Part.LineSegment(App.Vector(-31.5, -5, 0), App.Vector(-33, -2.4, 0)),
    Part.LineSegment(App.Vector(-33, -2.4, 0), App.Vector(-36, -2.4, 0)),
    Part.LineSegment(App.Vector(-36, -2.4, 0), App.Vector(-37.5, -5, 0)),
    Part.LineSegment(App.Vector(-37.5, -5, 0), App.Vector(-36, -7.6, 0)),
    Part.LineSegment(App.Vector(-36, -7.6, 0), App.Vector(-33, -7.6, 0)),
    Part.LineSegment(App.Vector(-33, -7.6, 0), App.Vector(-31.5, -5, 0)),
    Part.LineSegment(App.Vector(-31.5, 5, 0), App.Vector(-33, 7.6, 0)),
    Part.LineSegment(App.Vector(-33, 7.6, 0), App.Vector(-36, 7.6, 0)),
    Part.LineSegment(App.Vector(-36, 7.6, 0), App.Vector(-37.5, 5, 0)),
    Part.LineSegment(App.Vector(-37.5, 5, 0), App.Vector(-36, 2.4, 0)),
    Part.LineSegment(App.Vector(-36, 2.4, 0), App.Vector(-33, 2.4, 0)),
    Part.LineSegment(App.Vector(-33, 2.4, 0), App.Vector(-31.5, 5, 0)),
], False)
sketch8.addConstraint([
    Sketcher.Constraint("Coincident", 0, 2, 1, 1),
    Sketcher.Constraint("Coincident", 1, 2, 2, 1),
    Sketcher.Constraint("Coincident", 2, 2, 3, 1),
    Sketcher.Constraint("Coincident", 3, 2, 4, 1),
    Sketcher.Constraint("Coincident", 4, 2, 5, 1),
    Sketcher.Constraint("Coincident", 5, 2, 0, 1),
    Sketcher.Constraint("Coincident", 6, 2, 7, 1),
    Sketcher.Constraint("Coincident", 7, 2, 8, 1),
    Sketcher.Constraint("Coincident", 8, 2, 9, 1),
    Sketcher.Constraint("Coincident", 9, 2, 10, 1),
    Sketcher.Constraint("Coincident", 10, 2, 11, 1),
    Sketcher.Constraint("Coincident", 11, 2, 6, 1),
    Sketcher.Constraint("Coincident", 12, 2, 13, 1),
    Sketcher.Constraint("Coincident", 13, 2, 14, 1),
    Sketcher.Constraint("Coincident", 14, 2, 15, 1),
    Sketcher.Constraint("Coincident", 15, 2, 16, 1),
    Sketcher.Constraint("Coincident", 16, 2, 17, 1),
    Sketcher.Constraint("Coincident", 17, 2, 12, 1),
    Sketcher.Constraint("Coincident", 18, 2, 19, 1),
    Sketcher.Constraint("Coincident", 19, 2, 20, 1),
    Sketcher.Constraint("Coincident", 20, 2, 21, 1),
    Sketcher.Constraint("Coincident", 21, 2, 22, 1),
    Sketcher.Constraint("Coincident", 22, 2, 23, 1),
    Sketcher.Constraint("Coincident", 23, 2, 18, 1),
    Sketcher.Constraint("Horizontal", 1),
    Sketcher.Constraint("Horizontal", 4),
    Sketcher.Constraint("Horizontal", 7),
    Sketcher.Constraint("Horizontal", 10),
    Sketcher.Constraint("Horizontal", 13),
    Sketcher.Constraint("Horizontal", 16),
    Sketcher.Constraint("Horizontal", 19),
    Sketcher.Constraint("Horizontal", 22),
    Sketcher.Constraint("Symmetric", 4, 2, 6, 2, -1),
    Sketcher.Constraint("Symmetric", 2, 2, 8, 2, -1),
    Sketcher.Constraint("Symmetric", 1, 2, 9, 2, -1),
    Sketcher.Constraint("Symmetric", 5, 2, 11, 2, -1),
    Sketcher.Constraint("Symmetric", 16, 2, 18, 2, -1),
    Sketcher.Constraint("Symmetric", 14, 2, 20, 2, -1),
    Sketcher.Constraint("Symmetric", 13, 2, 21, 2, -1),
    Sketcher.Constraint("Symmetric", 17, 2, 23, 2, -1),
    Sketcher.Constraint("Parallel", 0, 3),
    Sketcher.Constraint("Parallel", 2, 5),
    Sketcher.Constraint("Parallel", 3, 6),
    Sketcher.Constraint("Parallel", 5, 8),
    Sketcher.Constraint("Parallel", 8, 11),
    Sketcher.Constraint("Parallel", 9, 12),
    Sketcher.Constraint("Parallel", 11, 14),
    Sketcher.Constraint("Parallel", 12, 15),
    Sketcher.Constraint("Parallel", 14, 17),
    Sketcher.Constraint("Parallel", 17, 20),
    Sketcher.Constraint("Parallel", 20, 23),
    Sketcher.Constraint("Horizontal", 2, 2, 5, 2),
    Sketcher.Constraint("Horizontal", 7, 2, 12, 2),
    Sketcher.Constraint("Horizontal", 11, 2, 14, 2),
    Sketcher.Constraint("Horizontal", 10, 2, 15, 2),
    Sketcher.Constraint("Horizontal", 14, 2, 17, 2),
    Sketcher.Constraint("Vertical", 1, 2, 3, 2),
    Sketcher.Constraint("Equal", 10, 13),
    Sketcher.Constraint("DistanceX", 1, 2, 1, 1, 3.0),
    Sketcher.Constraint("Angle", 0, Q("120 deg")),
    Sketcher.Constraint("Distance", 0, 3.0),
    Sketcher.Constraint("DistanceX", -1, 1, 0, 2, 16.0),
    Sketcher.Constraint("DistanceY", -1, 1, 2, 2, 5.0),
    Sketcher.Constraint("DistanceX", 12, 2, -1, 1, 33.0),
])
sketch8.setExpression("Constraints[58]", "Params.sketch8_width")
sketch8.setExpression("Constraints[60]", "Params.sketch8_length")
pocket6 = body.newObject("PartDesign::Pocket", "Pocket005")
pocket6.Profile = sketch8
pocket6.setExpression("Length", "Params.pocket6_length")

sketch9 = body.newObject("Sketcher::SketchObject", "Sketch008")
sketch9.AttachmentSupport = (doc.getObject("YZ_Plane"), [""])
sketch9.MapMode = "FlatFace"
sketch9.AttachmentOffset = App.Placement(App.Vector(0, 0, 60), App.Rotation())
sketch9.addGeometry([
    Part.LineSegment(App.Vector(12.5, -8, 0), App.Vector(12.5, 8, 0)),
    Part.ArcOfCircle(Part.Circle(App.Vector(14.5, 8, 0), App.Vector(0, 0, 1), 2), math.radians(90), math.radians(180)),
    Part.LineSegment(App.Vector(14.5, 10, 0), App.Vector(25.5, 10, 0)),
    Part.ArcOfCircle(Part.Circle(App.Vector(25.5, 8, 0), App.Vector(0, 0, 1), 2), math.radians(0), math.radians(90)),
    Part.LineSegment(App.Vector(27.5, 8, 0), App.Vector(27.5, -8, 0)),
    Part.ArcOfCircle(Part.Circle(App.Vector(25.5, -8, 0), App.Vector(0, 0, 1), 2), math.radians(-90), math.radians(0)),
    Part.LineSegment(App.Vector(25.5, -10, 0), App.Vector(14.5, -10, 0)),
    Part.ArcOfCircle(Part.Circle(App.Vector(14.5, -8, 0), App.Vector(0, 0, 1), 2), math.radians(-180), math.radians(-90)),
], False)
sketch9.addConstraint([
    Sketcher.Constraint("Tangent", 0, 2, 1, 2),
    Sketcher.Constraint("Tangent", 1, 1, 2, 1),
    Sketcher.Constraint("Tangent", 2, 2, 3, 2),
    Sketcher.Constraint("Tangent", 3, 1, 4, 1),
    Sketcher.Constraint("Tangent", 4, 2, 5, 2),
    Sketcher.Constraint("Tangent", 5, 1, 6, 1),
    Sketcher.Constraint("Tangent", 6, 2, 7, 2),
    Sketcher.Constraint("Tangent", 7, 1, 0, 1),
    Sketcher.Constraint("Vertical", 0),
    Sketcher.Constraint("Horizontal", 2),
    Sketcher.Constraint("Vertical", 4),
    Sketcher.Constraint("Horizontal", 6),
    Sketcher.Constraint("Equal", 1, 3),
    Sketcher.Constraint("Equal", 3, 5),
    Sketcher.Constraint("Equal", 5, 7),
    Sketcher.Constraint("Radius", 1, 2.0),
    Sketcher.Constraint("DistanceX", 2, 1, 2, 2, 11.0),
    Sketcher.Constraint("DistanceY", 0, 1, 0, 2, 16.0),
    Sketcher.Constraint("DistanceY", -1, 1, 1, 3, 8.0),
    Sketcher.Constraint("DistanceX", -1, 1, 1, 3, 14.5),
])
sketch9.setExpression("Constraints[15]", "Params.sketch9_radius")
sketch9.setExpression("Constraints[16]", "Params.sketch9_width")
sketch9.setExpression("Constraints[17]", "Params.sketch9_height")
pocket7 = body.newObject("PartDesign::Pocket", "Pocket006")
pocket7.Profile = sketch9
pocket7.setExpression("Length", "Params.pocket7_length")
pocket7.Reversed = True

doc.recompute()
